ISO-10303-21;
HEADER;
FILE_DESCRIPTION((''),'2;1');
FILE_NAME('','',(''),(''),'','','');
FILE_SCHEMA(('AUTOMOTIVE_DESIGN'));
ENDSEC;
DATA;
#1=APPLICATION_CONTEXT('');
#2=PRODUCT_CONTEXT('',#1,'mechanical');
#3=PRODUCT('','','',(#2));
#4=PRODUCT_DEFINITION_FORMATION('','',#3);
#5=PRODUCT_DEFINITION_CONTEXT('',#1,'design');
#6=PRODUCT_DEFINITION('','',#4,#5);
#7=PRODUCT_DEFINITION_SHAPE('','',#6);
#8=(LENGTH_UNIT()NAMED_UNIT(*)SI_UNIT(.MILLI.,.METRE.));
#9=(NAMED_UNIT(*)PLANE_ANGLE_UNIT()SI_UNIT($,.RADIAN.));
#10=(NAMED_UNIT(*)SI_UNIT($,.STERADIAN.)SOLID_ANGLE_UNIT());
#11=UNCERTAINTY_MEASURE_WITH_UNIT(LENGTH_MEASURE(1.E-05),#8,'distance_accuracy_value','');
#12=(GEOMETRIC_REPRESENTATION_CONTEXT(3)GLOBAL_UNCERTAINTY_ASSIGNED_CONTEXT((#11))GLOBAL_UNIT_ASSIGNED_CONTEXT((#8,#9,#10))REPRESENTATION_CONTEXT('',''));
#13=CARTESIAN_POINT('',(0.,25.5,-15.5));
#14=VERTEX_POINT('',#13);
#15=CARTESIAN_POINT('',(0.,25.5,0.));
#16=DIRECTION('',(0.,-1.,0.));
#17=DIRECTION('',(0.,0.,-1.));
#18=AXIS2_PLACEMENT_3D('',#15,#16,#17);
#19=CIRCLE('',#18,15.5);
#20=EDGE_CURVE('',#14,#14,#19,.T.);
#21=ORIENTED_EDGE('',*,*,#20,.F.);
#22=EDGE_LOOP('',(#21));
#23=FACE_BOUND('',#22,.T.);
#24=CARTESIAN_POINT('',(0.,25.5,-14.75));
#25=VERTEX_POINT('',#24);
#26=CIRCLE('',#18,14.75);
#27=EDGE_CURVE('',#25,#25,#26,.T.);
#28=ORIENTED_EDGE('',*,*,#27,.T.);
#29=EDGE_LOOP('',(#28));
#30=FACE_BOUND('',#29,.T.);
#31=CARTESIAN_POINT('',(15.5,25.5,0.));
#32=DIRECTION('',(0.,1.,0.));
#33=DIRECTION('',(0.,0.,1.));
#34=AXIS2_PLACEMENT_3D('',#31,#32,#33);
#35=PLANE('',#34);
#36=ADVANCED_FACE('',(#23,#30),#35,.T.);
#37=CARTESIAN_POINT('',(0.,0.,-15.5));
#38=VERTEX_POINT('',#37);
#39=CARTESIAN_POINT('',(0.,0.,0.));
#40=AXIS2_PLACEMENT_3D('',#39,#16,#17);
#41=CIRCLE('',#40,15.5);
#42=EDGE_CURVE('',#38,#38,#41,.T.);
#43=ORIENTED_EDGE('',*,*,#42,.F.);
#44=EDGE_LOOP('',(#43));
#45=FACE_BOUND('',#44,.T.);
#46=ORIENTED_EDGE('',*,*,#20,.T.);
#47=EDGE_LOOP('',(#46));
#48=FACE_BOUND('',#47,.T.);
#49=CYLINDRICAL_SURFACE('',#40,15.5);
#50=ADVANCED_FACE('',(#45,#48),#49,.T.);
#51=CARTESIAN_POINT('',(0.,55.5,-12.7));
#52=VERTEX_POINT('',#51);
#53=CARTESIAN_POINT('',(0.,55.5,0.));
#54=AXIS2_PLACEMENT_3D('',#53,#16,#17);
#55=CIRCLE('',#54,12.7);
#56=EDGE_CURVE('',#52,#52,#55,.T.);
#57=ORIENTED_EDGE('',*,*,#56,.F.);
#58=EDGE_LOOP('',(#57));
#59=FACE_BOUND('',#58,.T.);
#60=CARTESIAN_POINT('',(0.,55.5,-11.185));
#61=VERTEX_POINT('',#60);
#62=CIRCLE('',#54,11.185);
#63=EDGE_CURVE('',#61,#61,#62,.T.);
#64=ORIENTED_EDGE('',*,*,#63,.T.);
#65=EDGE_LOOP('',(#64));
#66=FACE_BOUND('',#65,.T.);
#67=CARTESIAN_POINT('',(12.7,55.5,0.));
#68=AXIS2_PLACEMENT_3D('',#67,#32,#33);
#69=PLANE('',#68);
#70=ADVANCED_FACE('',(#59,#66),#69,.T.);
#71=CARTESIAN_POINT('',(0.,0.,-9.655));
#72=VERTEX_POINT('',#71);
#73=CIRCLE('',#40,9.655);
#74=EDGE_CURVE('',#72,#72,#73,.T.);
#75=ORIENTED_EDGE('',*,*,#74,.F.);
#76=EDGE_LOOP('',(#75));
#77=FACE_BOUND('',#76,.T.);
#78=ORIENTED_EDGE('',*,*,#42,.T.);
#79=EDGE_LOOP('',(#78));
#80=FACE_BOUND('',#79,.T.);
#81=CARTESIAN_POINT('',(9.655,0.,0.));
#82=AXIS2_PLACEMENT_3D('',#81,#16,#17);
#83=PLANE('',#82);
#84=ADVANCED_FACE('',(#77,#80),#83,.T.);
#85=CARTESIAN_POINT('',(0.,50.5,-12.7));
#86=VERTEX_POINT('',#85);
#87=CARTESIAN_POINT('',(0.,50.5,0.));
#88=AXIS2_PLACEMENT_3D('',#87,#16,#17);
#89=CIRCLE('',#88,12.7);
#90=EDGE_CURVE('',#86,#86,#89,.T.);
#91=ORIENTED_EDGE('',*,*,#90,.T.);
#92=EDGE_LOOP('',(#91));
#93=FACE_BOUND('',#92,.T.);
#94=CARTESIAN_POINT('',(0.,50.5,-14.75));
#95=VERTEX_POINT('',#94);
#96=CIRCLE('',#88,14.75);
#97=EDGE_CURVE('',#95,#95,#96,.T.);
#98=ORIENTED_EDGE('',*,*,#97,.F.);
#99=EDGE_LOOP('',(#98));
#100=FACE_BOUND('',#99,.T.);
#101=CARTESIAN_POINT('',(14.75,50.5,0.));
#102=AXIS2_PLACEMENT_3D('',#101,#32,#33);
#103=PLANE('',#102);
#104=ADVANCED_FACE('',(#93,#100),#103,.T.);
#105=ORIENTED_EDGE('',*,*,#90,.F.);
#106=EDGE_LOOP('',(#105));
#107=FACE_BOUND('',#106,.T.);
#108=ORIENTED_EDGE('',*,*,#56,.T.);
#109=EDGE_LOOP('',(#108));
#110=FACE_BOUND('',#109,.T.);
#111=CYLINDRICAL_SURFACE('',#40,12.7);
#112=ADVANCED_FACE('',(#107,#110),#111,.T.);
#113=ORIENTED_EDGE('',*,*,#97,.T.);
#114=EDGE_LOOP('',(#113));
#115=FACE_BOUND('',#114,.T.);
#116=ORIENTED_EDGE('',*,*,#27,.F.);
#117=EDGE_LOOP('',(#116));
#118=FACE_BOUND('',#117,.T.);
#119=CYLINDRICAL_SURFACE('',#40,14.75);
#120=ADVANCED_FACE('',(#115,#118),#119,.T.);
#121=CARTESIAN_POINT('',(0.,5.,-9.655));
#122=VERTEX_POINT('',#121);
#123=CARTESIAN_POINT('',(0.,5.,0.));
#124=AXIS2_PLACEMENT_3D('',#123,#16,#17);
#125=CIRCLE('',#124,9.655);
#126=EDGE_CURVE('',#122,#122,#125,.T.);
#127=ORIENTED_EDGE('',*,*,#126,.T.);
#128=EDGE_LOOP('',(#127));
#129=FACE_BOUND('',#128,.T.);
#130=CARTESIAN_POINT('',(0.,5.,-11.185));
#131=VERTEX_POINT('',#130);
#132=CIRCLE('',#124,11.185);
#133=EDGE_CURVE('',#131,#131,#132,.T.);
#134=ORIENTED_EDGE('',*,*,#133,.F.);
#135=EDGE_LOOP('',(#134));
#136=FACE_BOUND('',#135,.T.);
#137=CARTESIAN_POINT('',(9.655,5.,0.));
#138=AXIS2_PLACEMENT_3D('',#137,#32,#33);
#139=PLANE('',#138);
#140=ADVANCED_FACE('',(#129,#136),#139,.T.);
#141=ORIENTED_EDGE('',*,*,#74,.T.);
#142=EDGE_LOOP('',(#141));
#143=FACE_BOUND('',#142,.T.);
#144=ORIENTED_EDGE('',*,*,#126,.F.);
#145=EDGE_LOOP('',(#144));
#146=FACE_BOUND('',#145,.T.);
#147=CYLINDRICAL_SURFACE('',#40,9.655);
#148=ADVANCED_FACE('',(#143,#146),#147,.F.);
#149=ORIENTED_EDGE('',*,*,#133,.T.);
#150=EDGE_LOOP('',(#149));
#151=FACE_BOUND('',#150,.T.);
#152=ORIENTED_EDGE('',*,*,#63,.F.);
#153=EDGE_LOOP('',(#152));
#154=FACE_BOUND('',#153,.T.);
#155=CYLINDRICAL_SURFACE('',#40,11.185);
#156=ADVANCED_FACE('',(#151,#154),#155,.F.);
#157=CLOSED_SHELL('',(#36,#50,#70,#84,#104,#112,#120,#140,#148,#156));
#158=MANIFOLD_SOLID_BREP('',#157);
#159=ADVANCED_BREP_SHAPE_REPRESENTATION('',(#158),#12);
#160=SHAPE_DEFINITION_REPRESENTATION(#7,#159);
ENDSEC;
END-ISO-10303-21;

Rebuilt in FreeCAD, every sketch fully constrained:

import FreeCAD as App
import Part
import Sketcher
Q = App.Units.Quantity


def add_polygon(sketch, points):
    """Adds a closed chain of lines whose ends are joined by coincident constraints."""
    first, n = sketch.GeometryCount, len(points)
    for a, b in zip(points, points[1:] + points[:1]):
        sketch.addGeometry(Part.LineSegment(App.Vector(*a, 0), App.Vector(*b, 0)), False)
    for i in range(n):
        sketch.addConstraint(Sketcher.Constraint("Coincident", first + i, 2, first + (i + 1) % n, 1))

doc = App.newDocument("Part")
body = doc.addObject("PartDesign::Body", "Body")

# Sketch on XY plane
sketch1 = body.newObject("Sketcher::SketchObject", "Sketch")
sketch1.AttachmentSupport = (doc.getObject("XY_Plane"), [""])
sketch1.MapMode = "FlatFace"
add_polygon(sketch1, [(9.7, 0), (15.5, 0), (15.5, 25.5), (14.8, 25.5), (14.8, 50.5), (12.7, 50.5), (12.7, 55.5), (11.2, 55.5), (11.2, 5), (9.7, 5)])  # lines 0-9
sketch1.addConstraint([
    Sketcher.Constraint("Horizontal", 0),
    Sketcher.Constraint("Vertical", 1),
    Sketcher.Constraint("Horizontal", 2),
    Sketcher.Constraint("Vertical", 3),
    Sketcher.Constraint("Horizontal", 4),
    Sketcher.Constraint("Vertical", 5),
    Sketcher.Constraint("Horizontal", 6),
    Sketcher.Constraint("Vertical", 7),
    Sketcher.Constraint("Horizontal", 8),
    Sketcher.Constraint("Vertical", 9),
    Sketcher.Constraint("PointOnObject", 0, 2, -1),
    Sketcher.Constraint("Equal", 5, 9),
    Sketcher.Constraint("DistanceY", 3, 1, 3, 2, Q("25 mm")),
    Sketcher.Constraint("DistanceY", 5, 1, 5, 2, Q("5 mm")),
    Sketcher.Constraint("DistanceY", 1, 1, 1, 2, Q("25.5 mm")),
    Sketcher.Constraint("DistanceX", 2, 2, 2, 1, Q("0.75 mm")),
    Sketcher.Constraint("DistanceX", 4, 2, 4, 1, Q("2.05 mm")),
    Sketcher.Constraint("DistanceX", 8, 2, 8, 1, Q("1.53 mm")),
    Sketcher.Constraint("DistanceX", -1, 1, 0, 2, Q("15.5 mm")),
    Sketcher.Constraint("DistanceX", 0, 1, 0, 2, Q("5.845 mm")),
])
revolution = body.newObject("PartDesign::Revolution", "Revolution")
revolution.Profile = sketch1
revolution.ReferenceAxis = (sketch1, ["V_Axis"])
revolution.Angle = 360

doc.recompute()
